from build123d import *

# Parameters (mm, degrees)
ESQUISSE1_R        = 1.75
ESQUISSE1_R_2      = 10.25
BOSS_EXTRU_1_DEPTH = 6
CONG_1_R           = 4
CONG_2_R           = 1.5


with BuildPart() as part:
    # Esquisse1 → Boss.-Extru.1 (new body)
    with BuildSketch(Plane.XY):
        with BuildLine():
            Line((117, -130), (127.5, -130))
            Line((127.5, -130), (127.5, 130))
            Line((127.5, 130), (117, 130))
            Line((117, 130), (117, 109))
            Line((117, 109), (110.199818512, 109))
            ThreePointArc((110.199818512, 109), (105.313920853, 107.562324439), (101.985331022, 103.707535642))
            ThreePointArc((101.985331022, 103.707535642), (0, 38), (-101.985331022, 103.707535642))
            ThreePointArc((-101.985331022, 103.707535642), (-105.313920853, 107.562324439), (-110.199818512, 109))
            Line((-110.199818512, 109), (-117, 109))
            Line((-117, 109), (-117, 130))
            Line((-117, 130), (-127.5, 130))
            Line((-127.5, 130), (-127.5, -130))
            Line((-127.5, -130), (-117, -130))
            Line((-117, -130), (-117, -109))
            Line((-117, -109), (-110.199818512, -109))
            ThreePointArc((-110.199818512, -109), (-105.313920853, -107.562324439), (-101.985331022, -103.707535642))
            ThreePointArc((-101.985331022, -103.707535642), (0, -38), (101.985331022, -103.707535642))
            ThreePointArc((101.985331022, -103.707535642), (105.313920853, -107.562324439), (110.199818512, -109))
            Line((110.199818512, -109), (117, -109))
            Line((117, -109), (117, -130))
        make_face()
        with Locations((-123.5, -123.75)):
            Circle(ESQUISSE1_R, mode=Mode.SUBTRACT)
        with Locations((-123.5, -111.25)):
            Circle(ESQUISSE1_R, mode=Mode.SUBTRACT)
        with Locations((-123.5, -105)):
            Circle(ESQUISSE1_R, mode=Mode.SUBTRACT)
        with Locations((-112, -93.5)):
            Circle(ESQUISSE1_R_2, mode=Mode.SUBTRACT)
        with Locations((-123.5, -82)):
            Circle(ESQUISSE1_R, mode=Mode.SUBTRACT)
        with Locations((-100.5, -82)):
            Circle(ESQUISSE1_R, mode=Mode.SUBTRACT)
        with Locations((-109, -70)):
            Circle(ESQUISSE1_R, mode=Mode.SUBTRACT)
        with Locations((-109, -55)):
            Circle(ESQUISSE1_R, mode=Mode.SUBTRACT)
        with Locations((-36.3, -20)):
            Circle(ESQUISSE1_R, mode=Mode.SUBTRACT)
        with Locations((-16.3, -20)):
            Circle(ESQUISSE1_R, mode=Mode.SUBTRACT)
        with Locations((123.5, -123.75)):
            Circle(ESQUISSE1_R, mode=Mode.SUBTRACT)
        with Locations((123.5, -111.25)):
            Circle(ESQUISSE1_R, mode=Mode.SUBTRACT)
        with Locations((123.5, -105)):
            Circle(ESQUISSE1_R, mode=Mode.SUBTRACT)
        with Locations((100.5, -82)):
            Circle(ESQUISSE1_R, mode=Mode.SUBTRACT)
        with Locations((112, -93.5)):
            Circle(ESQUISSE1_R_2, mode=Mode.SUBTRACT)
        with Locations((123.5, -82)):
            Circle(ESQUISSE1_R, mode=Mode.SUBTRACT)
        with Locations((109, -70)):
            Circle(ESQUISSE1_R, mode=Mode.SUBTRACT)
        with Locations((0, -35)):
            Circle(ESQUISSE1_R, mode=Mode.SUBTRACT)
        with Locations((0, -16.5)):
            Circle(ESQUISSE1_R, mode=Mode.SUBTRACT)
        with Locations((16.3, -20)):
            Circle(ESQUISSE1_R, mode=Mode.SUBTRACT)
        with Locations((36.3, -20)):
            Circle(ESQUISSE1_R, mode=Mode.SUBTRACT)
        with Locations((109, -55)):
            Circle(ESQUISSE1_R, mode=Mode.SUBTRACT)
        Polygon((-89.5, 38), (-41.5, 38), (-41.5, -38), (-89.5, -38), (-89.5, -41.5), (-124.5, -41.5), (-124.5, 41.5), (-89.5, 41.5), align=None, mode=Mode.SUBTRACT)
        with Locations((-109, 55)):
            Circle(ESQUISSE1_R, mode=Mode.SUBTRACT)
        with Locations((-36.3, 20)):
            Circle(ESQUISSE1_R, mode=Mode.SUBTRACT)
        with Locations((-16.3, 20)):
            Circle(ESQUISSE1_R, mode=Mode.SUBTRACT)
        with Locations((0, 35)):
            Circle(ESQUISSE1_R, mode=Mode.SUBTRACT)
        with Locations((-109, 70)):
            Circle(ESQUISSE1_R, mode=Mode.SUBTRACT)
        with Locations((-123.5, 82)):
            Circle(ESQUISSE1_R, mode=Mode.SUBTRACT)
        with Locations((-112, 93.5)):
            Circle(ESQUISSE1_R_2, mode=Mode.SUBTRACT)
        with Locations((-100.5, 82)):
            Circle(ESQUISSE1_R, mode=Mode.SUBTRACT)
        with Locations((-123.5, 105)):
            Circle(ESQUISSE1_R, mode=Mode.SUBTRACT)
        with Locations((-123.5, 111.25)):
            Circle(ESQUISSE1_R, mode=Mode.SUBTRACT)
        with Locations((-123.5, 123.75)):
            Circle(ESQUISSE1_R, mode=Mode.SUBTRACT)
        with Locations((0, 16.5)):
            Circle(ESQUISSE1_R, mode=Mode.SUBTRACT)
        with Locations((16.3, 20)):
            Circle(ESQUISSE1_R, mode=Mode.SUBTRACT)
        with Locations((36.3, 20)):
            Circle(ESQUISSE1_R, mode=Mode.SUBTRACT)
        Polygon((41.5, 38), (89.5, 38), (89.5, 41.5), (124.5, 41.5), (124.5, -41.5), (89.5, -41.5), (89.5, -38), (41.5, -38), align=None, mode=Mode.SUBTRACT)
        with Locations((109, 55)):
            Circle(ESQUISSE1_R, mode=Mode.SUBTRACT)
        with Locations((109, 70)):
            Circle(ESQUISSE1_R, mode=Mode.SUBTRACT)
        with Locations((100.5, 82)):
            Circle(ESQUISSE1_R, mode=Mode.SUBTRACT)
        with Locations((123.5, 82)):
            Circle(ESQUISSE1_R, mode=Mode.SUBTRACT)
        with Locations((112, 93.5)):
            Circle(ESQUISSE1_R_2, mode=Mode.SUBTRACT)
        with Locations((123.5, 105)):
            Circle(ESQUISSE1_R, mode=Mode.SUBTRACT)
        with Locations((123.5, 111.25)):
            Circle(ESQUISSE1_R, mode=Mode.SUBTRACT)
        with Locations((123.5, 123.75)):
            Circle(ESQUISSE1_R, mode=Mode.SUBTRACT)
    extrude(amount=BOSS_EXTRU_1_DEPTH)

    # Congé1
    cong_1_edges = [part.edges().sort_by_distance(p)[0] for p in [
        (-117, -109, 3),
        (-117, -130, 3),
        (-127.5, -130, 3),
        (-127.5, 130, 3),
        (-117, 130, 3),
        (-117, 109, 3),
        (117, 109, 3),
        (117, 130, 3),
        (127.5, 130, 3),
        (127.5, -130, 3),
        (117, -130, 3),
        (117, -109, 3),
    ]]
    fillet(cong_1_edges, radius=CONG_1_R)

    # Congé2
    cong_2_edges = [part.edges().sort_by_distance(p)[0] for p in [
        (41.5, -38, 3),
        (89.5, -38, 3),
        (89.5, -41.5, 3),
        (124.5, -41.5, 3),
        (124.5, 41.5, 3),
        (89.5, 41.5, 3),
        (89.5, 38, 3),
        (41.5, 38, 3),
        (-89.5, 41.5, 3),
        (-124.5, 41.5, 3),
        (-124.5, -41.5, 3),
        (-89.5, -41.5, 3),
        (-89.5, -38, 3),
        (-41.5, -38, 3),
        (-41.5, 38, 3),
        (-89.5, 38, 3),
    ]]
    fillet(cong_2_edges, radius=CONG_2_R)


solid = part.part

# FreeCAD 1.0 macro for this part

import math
import FreeCAD as App
import Part
import Sketcher


def edges_at(feature, points):
    """Names of the edges that pass closest to the given points."""
    edges = feature.Shape.Edges
    near = lambda p: min(range(len(edges)), key=lambda i: edges[i].distToShape(Part.Vertex(*p))[0])
    return sorted({f"Edge{near(p) + 1}" for p in points})


def add_polygon(sketch, points):
    """Adds a closed chain of lines whose ends are joined by coincident constraints."""
    first, n = sketch.GeometryCount, len(points)
    for a, b in zip(points, points[1:] + points[:1]):
        sketch.addGeometry(Part.LineSegment(App.Vector(*a, 0), App.Vector(*b, 0)), False)
    for i in range(n):
        sketch.addConstraint(Sketcher.Constraint("Coincident", first + i, 2, first + (i + 1) % n, 1))

doc = App.newDocument("Part")
params = doc.addObject("Spreadsheet::Sheet", "Params")
for row, (alias, value) in enumerate([
    ("sketch1_radius", "112 mm"),
    ("sketch1_diameter", "3.5 mm"),
    ("sketch1_diameter2", "20.5 mm"),
    ("sketch1_width", "48 mm"),
    ("sketch1_width2", "35 mm"),
    ("pad1_length", "6 mm"),
    ("fillet_radius", "4 mm"),
    ("fillet2_radius", "1.5 mm"),
], start=1):
    params.set(f"A{row}", alias)
    params.set(f"B{row}", "=" + value)
    params.setAlias(f"B{row}", alias)

body = doc.addObject("PartDesign::Body", "Body")

# Sketch on XY plane
sketch1 = body.newObject("Sketcher::SketchObject", "Sketch")
sketch1.AttachmentSupport = (doc.getObject("XY_Plane"), [""])
sketch1.MapMode = "FlatFace"
sketch1.addGeometry(Part.LineSegment(App.Vector(117, -130, 0), App.Vector(127.5, -130, 0)), False)  # 0
sketch1.addGeometry(Part.LineSegment(App.Vector(127.5, -130, 0), App.Vector(127.5, 130, 0)), False)  # 1
sketch1.addGeometry(Part.LineSegment(App.Vector(127.5, 130, 0), App.Vector(117, 130, 0)), False)  # 2
sketch1.addGeometry(Part.LineSegment(App.Vector(117, 130, 0), App.Vector(117, 109, 0)), False)  # 3
sketch1.addGeometry(Part.LineSegment(App.Vector(117, 109, 0), App.Vector(110.2, 109, 0)), False)  # 4
sketch1.addGeometry(Part.ArcOfCircle(Part.Circle(App.Vector(110.2, 100, 0), App.Vector(0, 0, 1), 9), math.radians(90), math.radians(156)), False)  # 5
sketch1.addGeometry(Part.ArcOfCircle(Part.Circle(App.Vector(0, 150, 0), App.Vector(0, 0, 1), 112), math.radians(-156), math.radians(-24)), False)  # 6
sketch1.addGeometry(Part.ArcOfCircle(Part.Circle(App.Vector(-110.2, 100, 0), App.Vector(0, 0, 1), 9), math.radians(24), math.radians(90)), False)  # 7
sketch1.addGeometry(Part.LineSegment(App.Vector(-110.2, 109, 0), App.Vector(-117, 109, 0)), False)  # 8
sketch1.addGeometry(Part.LineSegment(App.Vector(-117, 109, 0), App.Vector(-117, 130, 0)), False)  # 9
sketch1.addGeometry(Part.LineSegment(App.Vector(-117, 130, 0), App.Vector(-127.5, 130, 0)), False)  # 10
sketch1.addGeometry(Part.LineSegment(App.Vector(-127.5, 130, 0), App.Vector(-127.5, -130, 0)), False)  # 11
sketch1.addGeometry(Part.LineSegment(App.Vector(-127.5, -130, 0), App.Vector(-117, -130, 0)), False)  # 12
sketch1.addGeometry(Part.LineSegment(App.Vector(-117, -130, 0), App.Vector(-117, -109, 0)), False)  # 13
sketch1.addGeometry(Part.LineSegment(App.Vector(-117, -109, 0), App.Vector(-110.2, -109, 0)), False)  # 14
sketch1.addGeometry(Part.ArcOfCircle(Part.Circle(App.Vector(-110.2, -100, 0), App.Vector(0, 0, 1), 9), math.radians(-90), math.radians(-24)), False)  # 15
sketch1.addGeometry(Part.ArcOfCircle(Part.Circle(App.Vector(0, -150, 0), App.Vector(0, 0, 1), 112), math.radians(24), math.radians(156)), False)  # 16
sketch1.addGeometry(Part.ArcOfCircle(Part.Circle(App.Vector(110.2, -100, 0), App.Vector(0, 0, 1), 9), math.radians(-156), math.radians(-90)), False)  # 17
sketch1.addGeometry(Part.LineSegment(App.Vector(110.2, -109, 0), App.Vector(117, -109, 0)), False)  # 18
sketch1.addGeometry(Part.LineSegment(App.Vector(117, -109, 0), App.Vector(117, -130, 0)), False)  # 19
sketch1.addGeometry(Part.Circle(App.Vector(-123.5, -123.8, 0), App.Vector(0, 0, 1), 1.8), False)  # 20
sketch1.addGeometry(Part.Circle(App.Vector(-123.5, -111.2, 0), App.Vector(0, 0, 1), 1.8), False)  # 21
sketch1.addGeometry(Part.Circle(App.Vector(-123.5, -105, 0), App.Vector(0, 0, 1), 1.8), False)  # 22
sketch1.addGeometry(Part.Circle(App.Vector(-112, -93.5, 0), App.Vector(0, 0, 1), 10.2), False)  # 23
sketch1.addGeometry(Part.Circle(App.Vector(-123.5, -82, 0), App.Vector(0, 0, 1), 1.8), False)  # 24
sketch1.addGeometry(Part.Circle(App.Vector(-100.5, -82, 0), App.Vector(0, 0, 1), 1.8), False)  # 25
sketch1.addGeometry(Part.Circle(App.Vector(-109, -70, 0), App.Vector(0, 0, 1), 1.8), False)  # 26
sketch1.addGeometry(Part.Circle(App.Vector(-109, -55, 0), App.Vector(0, 0, 1), 1.8), False)  # 27
sketch1.addGeometry(Part.Circle(App.Vector(0, -35, 0), App.Vector(0, 0, 1), 1.8), False)  # 28
sketch1.addGeometry(Part.Circle(App.Vector(-36.3, -20, 0), App.Vector(0, 0, 1), 1.8), False)  # 29
sketch1.addGeometry(Part.Circle(App.Vector(-16.3, -20, 0), App.Vector(0, 0, 1), 1.8), False)  # 30
sketch1.addGeometry(Part.Circle(App.Vector(0, -16.5, 0), App.Vector(0, 0, 1), 1.8), False)  # 31
sketch1.addGeometry(Part.Circle(App.Vector(123.5, -123.8, 0), App.Vector(0, 0, 1), 1.8), False)  # 32
sketch1.addGeometry(Part.Circle(App.Vector(123.5, -111.2, 0), App.Vector(0, 0, 1), 1.8), False)  # 33
sketch1.addGeometry(Part.Circle(App.Vector(123.5, -105, 0), App.Vector(0, 0, 1), 1.8), False)  # 34
sketch1.addGeometry(Part.Circle(App.Vector(100.5, -82, 0), App.Vector(0, 0, 1), 1.8), False)  # 35
sketch1.addGeometry(Part.Circle(App.Vector(112, -93.5, 0), App.Vector(0, 0, 1), 10.2), False)  # 36
sketch1.addGeometry(Part.Circle(App.Vector(123.5, -82, 0), App.Vector(0, 0, 1), 1.8), False)  # 37
sketch1.addGeometry(Part.Circle(App.Vector(109, -70, 0), App.Vector(0, 0, 1), 1.8), False)  # 38
sketch1.addGeometry(Part.Circle(App.Vector(16.3, -20, 0), App.Vector(0, 0, 1), 1.8), False)  # 39
sketch1.addGeometry(Part.Circle(App.Vector(36.3, -20, 0), App.Vector(0, 0, 1), 1.8), False)  # 40
sketch1.addGeometry(Part.Circle(App.Vector(109, -55, 0), App.Vector(0, 0, 1), 1.8), False)  # 41
add_polygon(sketch1, [(-89.5, 41.5), (-89.5, 38), (-41.5, 38), (-41.5, -38), (-89.5, -38), (-89.5, -41.5), (-124.5, -41.5), (-124.5, 41.5)])  # lines 42-49
sketch1.addGeometry(Part.Circle(App.Vector(-109, 55, 0), App.Vector(0, 0, 1), 1.8), False)  # 50
sketch1.addGeometry(Part.Circle(App.Vector(-36.3, 20, 0), App.Vector(0, 0, 1), 1.8), False)  # 51
sketch1.addGeometry(Part.Circle(App.Vector(-16.3, 20, 0), App.Vector(0, 0, 1), 1.8), False)  # 52
sketch1.addGeometry(Part.Circle(App.Vector(0, 16.5, 0), App.Vector(0, 0, 1), 1.8), False)  # 53
sketch1.addGeometry(Part.Circle(App.Vector(0, 35, 0), App.Vector(0, 0, 1), 1.8), False)  # 54
sketch1.addGeometry(Part.Circle(App.Vector(-109, 70, 0), App.Vector(0, 0, 1), 1.8), False)  # 55
sketch1.addGeometry(Part.Circle(App.Vector(-123.5, 82, 0), App.Vector(0, 0, 1), 1.8), False)  # 56
sketch1.addGeometry(Part.Circle(App.Vector(-112, 93.5, 0), App.Vector(0, 0, 1), 10.2), False)  # 57
sketch1.addGeometry(Part.Circle(App.Vector(-100.5, 82, 0), App.Vector(0, 0, 1), 1.8), False)  # 58
sketch1.addGeometry(Part.Circle(App.Vector(-123.5, 105, 0), App.Vector(0, 0, 1), 1.8), False)  # 59
sketch1.addGeometry(Part.Circle(App.Vector(-123.5, 111.2, 0), App.Vector(0, 0, 1), 1.8), False)  # 60
sketch1.addGeometry(Part.Circle(App.Vector(-123.5, 123.8, 0), App.Vector(0, 0, 1), 1.8), False)  # 61
sketch1.addGeometry(Part.Circle(App.Vector(16.3, 20, 0), App.Vector(0, 0, 1), 1.8), False)  # 62
sketch1.addGeometry(Part.Circle(App.Vector(36.3, 20, 0), App.Vector(0, 0, 1), 1.8), False)  # 63
add_polygon(sketch1, [(41.5, -38), (41.5, 38), (89.5, 38), (89.5, 41.5), (124.5, 41.5), (124.5, -41.5), (89.5, -41.5), (89.5, -38)])  # lines 64-71
sketch1.addGeometry(Part.Circle(App.Vector(109, 55, 0), App.Vector(0, 0, 1), 1.8), False)  # 72
sketch1.addGeometry(Part.Circle(App.Vector(109, 70, 0), App.Vector(0, 0, 1), 1.8), False)  # 73
sketch1.addGeometry(Part.Circle(App.Vector(100.5, 82, 0), App.Vector(0, 0, 1), 1.8), False)  # 74
sketch1.addGeometry(Part.Circle(App.Vector(123.5, 82, 0), App.Vector(0, 0, 1), 1.8), False)  # 75
sketch1.addGeometry(Part.Circle(App.Vector(112, 93.5, 0), App.Vector(0, 0, 1), 10.2), False)  # 76
sketch1.addGeometry(Part.Circle(App.Vector(123.5, 105, 0), App.Vector(0, 0, 1), 1.8), False)  # 77
sketch1.addGeometry(Part.Circle(App.Vector(123.5, 111.2, 0), App.Vector(0, 0, 1), 1.8), False)  # 78
sketch1.addGeometry(Part.Circle(App.Vector(123.5, 123.8, 0), App.Vector(0, 0, 1), 1.8), False)  # 79
sketch1.addConstraint([
    Sketcher.Constraint("Coincident", 0, 2, 1, 1),
    Sketcher.Constraint("Coincident", 1, 2, 2, 1),
    Sketcher.Constraint("Coincident", 2, 2, 3, 1),
    Sketcher.Constraint("Coincident", 3, 2, 4, 1),
    Sketcher.Constraint("Tangent", 4, 2, 5, 1),
    Sketcher.Constraint("Tangent", 5, 2, 6, 2),
    Sketcher.Constraint("Tangent", 6, 1, 7, 1),
    Sketcher.Constraint("Tangent", 7, 2, 8, 1),
    Sketcher.Constraint("Coincident", 8, 2, 9, 1),
    Sketcher.Constraint("Coincident", 9, 2, 10, 1),
    Sketcher.Constraint("Coincident", 10, 2, 11, 1),
    Sketcher.Constraint("Coincident", 11, 2, 12, 1),
    Sketcher.Constraint("Coincident", 12, 2, 13, 1),
    Sketcher.Constraint("Coincident", 13, 2, 14, 1),
    Sketcher.Constraint("Tangent", 14, 2, 15, 1),
    Sketcher.Constraint("Tangent", 15, 2, 16, 2),
    Sketcher.Constraint("Tangent", 16, 1, 17, 1),
    Sketcher.Constraint("Tangent", 17, 2, 18, 1),
    Sketcher.Constraint("Coincident", 18, 2, 19, 1),
    Sketcher.Constraint("Coincident", 19, 2, 0, 1),
    Sketcher.Constraint("Horizontal", 0),
    Sketcher.Constraint("Vertical", 1),
    Sketcher.Constraint("Horizontal", 2),
    Sketcher.Constraint("Vertical", 3),
    Sketcher.Constraint("Horizontal", 4),
    Sketcher.Constraint("Horizontal", 8),
    Sketcher.Constraint("Vertical", 9),
    Sketcher.Constraint("Horizontal", 10),
    Sketcher.Constraint("Vertical", 11),
    Sketcher.Constraint("Horizontal", 12),
    Sketcher.Constraint("Vertical", 13),
    Sketcher.Constraint("Horizontal", 14),
    Sketcher.Constraint("Horizontal", 18),
    Sketcher.Constraint("Vertical", 19),
    Sketcher.Constraint("Vertical", 42),
    Sketcher.Constraint("Horizontal", 43),
    Sketcher.Constraint("Vertical", 44),
    Sketcher.Constraint("Horizontal", 45),
    Sketcher.Constraint("Vertical", 46),
    Sketcher.Constraint("Horizontal", 47),
    Sketcher.Constraint("Vertical", 48),
    Sketcher.Constraint("Horizontal", 49),
    Sketcher.Constraint("Vertical", 64),
    Sketcher.Constraint("Horizontal", 65),
    Sketcher.Constraint("Vertical", 66),
    Sketcher.Constraint("Horizontal", 67),
    Sketcher.Constraint("Vertical", 68),
    Sketcher.Constraint("Horizontal", 69),
    Sketcher.Constraint("Vertical", 70),
    Sketcher.Constraint("Horizontal", 71),
    Sketcher.Constraint("Equal", 5, 7),
    Sketcher.Constraint("Equal", 7, 15),
    Sketcher.Constraint("Equal", 6, 16),
    Sketcher.Constraint("Equal", 15, 17),
    Sketcher.Constraint("Equal", 20, 21),
    Sketcher.Constraint("Equal", 21, 22),
    Sketcher.Constraint("Equal", 22, 24),
    Sketcher.Constraint("Equal", 24, 25),
    Sketcher.Constraint("Equal", 25, 26),
    Sketcher.Constraint("Equal", 26, 27),
    Sketcher.Constraint("Equal", 27, 28),
    Sketcher.Constraint("Equal", 28, 29),
    Sketcher.Constraint("Equal", 29, 30),
    Sketcher.Constraint("Equal", 30, 31),
    Sketcher.Constraint("Equal", 31, 32),
    Sketcher.Constraint("Equal", 32, 33),
    Sketcher.Constraint("Equal", 33, 34),
    Sketcher.Constraint("Equal", 34, 35),
    Sketcher.Constraint("Equal", 23, 36),
    Sketcher.Constraint("Equal", 35, 37),
    Sketcher.Constraint("Equal", 37, 38),
    Sketcher.Constraint("Equal", 38, 39),
    Sketcher.Constraint("Equal", 39, 40),
    Sketcher.Constraint("Equal", 40, 41),
    Sketcher.Constraint("Equal", 41, 50),
    Sketcher.Constraint("Equal", 50, 51),
    Sketcher.Constraint("Equal", 51, 52),
    Sketcher.Constraint("Equal", 52, 53),
    Sketcher.Constraint("Equal", 53, 54),
    Sketcher.Constraint("Equal", 54, 55),
    Sketcher.Constraint("Equal", 55, 56),
    Sketcher.Constraint("Equal", 36, 57),
    Sketcher.Constraint("Equal", 56, 58),
    Sketcher.Constraint("Equal", 58, 59),
    Sketcher.Constraint("Equal", 59, 60),
    Sketcher.Constraint("Equal", 60, 61),
    Sketcher.Constraint("Equal", 61, 62),
    Sketcher.Constraint("Equal", 62, 63),
    Sketcher.Constraint("Equal", 63, 72),
    Sketcher.Constraint("Equal", 72, 73),
    Sketcher.Constraint("Equal", 73, 74),
    Sketcher.Constraint("Equal", 74, 75),
    Sketcher.Constraint("Equal", 57, 76),
    Sketcher.Constraint("Equal", 75, 77),
    Sketcher.Constraint("Equal", 77, 78),
    Sketcher.Constraint("Equal", 78, 79),
    Sketcher.Constraint("Symmetric", 5, 3, 15, 3, -1, 1),
    Sketcher.Constraint("Symmetric", 7, 3, 17, 3, -1, 1),
    Sketcher.Constraint("Symmetric", 41, 3, 50, 3, -1, 1),
    Sketcher.Constraint("Symmetric", 40, 3, 51, 3, -1, 1),
    Sketcher.Constraint("Symmetric", 39, 3, 52, 3, -1, 1),
    Sketcher.Constraint("Symmetric", 31, 3, 53, 3, -1, 1),
    Sketcher.Constraint("Symmetric", 28, 3, 54, 3, -1, 1),
    Sketcher.Constraint("Symmetric", 38, 3, 55, 3, -1, 1),
    Sketcher.Constraint("Symmetric", 37, 3, 56, 3, -1, 1),
    Sketcher.Constraint("Symmetric", 36, 3, 57, 3, -1, 1),
    Sketcher.Constraint("Symmetric", 35, 3, 58, 3, -1, 1),
    Sketcher.Constraint("Symmetric", 34, 3, 59, 3, -1, 1),
    Sketcher.Constraint("Symmetric", 33, 3, 60, 3, -1, 1),
    Sketcher.Constraint("Symmetric", 32, 3, 61, 3, -1, 1),
    Sketcher.Constraint("Symmetric", 30, 3, 62, 3, -1, 1),
    Sketcher.Constraint("Symmetric", 29, 3, 63, 3, -1, 1),
    Sketcher.Constraint("Symmetric", 27, 3, 72, 3, -1, 1),
    Sketcher.Constraint("Symmetric", 26, 3, 73, 3, -1, 1),
    Sketcher.Constraint("Symmetric", 25, 3, 74, 3, -1, 1),
    Sketcher.Constraint("Symmetric", 24, 3, 75, 3, -1, 1),
    Sketcher.Constraint("Symmetric", 23, 3, 76, 3, -1, 1),
    Sketcher.Constraint("Symmetric", 22, 3, 77, 3, -1, 1),
    Sketcher.Constraint("Symmetric", 21, 3, 78, 3, -1, 1),
    Sketcher.Constraint("Symmetric", 20, 3, 79, 3, -1, 1),
    Sketcher.Constraint("Symmetric", 0, 2, 10, 2, -1, 1),
    Sketcher.Constraint("Symmetric", 2, 2, 12, 2, -1, 1),
    Sketcher.Constraint("Symmetric", 44, 2, 64, 2, -1, 1),
    Sketcher.Constraint("Symmetric", 46, 2, 66, 2, -1, 1),
    Sketcher.Constraint("Symmetric", 48, 2, 68, 2, -1, 1),
    Sketcher.Constraint("Symmetric", 42, 2, 70, 2, -1, 1),
    Sketcher.Constraint("Symmetric", 5, 3, 7, 3, -2),
    Sketcher.Constraint("Symmetric", 20, 3, 32, 3, -2),
    Sketcher.Constraint("Symmetric", 21, 3, 33, 3, -2),
    Sketcher.Constraint("Symmetric", 22, 3, 34, 3, -2),
    Sketcher.Constraint("Symmetric", 25, 3, 35, 3, -2),
    Sketcher.Constraint("Symmetric", 23, 3, 36, 3, -2),
    Sketcher.Constraint("Symmetric", 24, 3, 37, 3, -2),
    Sketcher.Constraint("Symmetric", 26, 3, 38, 3, -2),
    Sketcher.Constraint("Symmetric", 30, 3, 39, 3, -2),
    Sketcher.Constraint("Symmetric", 29, 3, 40, 3, -2),
    Sketcher.Constraint("Symmetric", 27, 3, 41, 3, -2),
    Sketcher.Constraint("Symmetric", 2, 2, 9, 2, -2),
    Sketcher.Constraint("Symmetric", 42, 2, 65, 2, -2),
    Sketcher.Constraint("PointOnObject", 28, 3, -2),
    Sketcher.Constraint("PointOnObject", 31, 3, -2),
    Sketcher.Constraint("Horizontal", 24, 3, 25, 3),
    Sketcher.Constraint("Horizontal", 29, 3, 30, 3),
    Sketcher.Constraint("Horizontal", 49, 2, 66, 2),
    Sketcher.Constraint("Vertical", 20, 3, 21, 3),
    Sketcher.Constraint("Vertical", 21, 3, 22, 3),
    Sketcher.Constraint("Vertical", 22, 3, 24, 3),
    Sketcher.Constraint("Vertical", 26, 3, 27, 3),
    Sketcher.Constraint("Vertical", 3, 2, 18, 2),
    Sketcher.Constraint("Radius", 6, 112.0),
    Sketcher.Constraint("Diameter", 20, 3.5),
    Sketcher.Constraint("Diameter", 23, 20.5),
    Sketcher.Constraint("DistanceX", 43, 1, 43, 2, 48.0),
    Sketcher.Constraint("DistanceX", 47, 2, 47, 1, 35.0),
    Sketcher.Constraint("DistanceY", 1, 1, 1, 2, 260.0),
    Sketcher.Constraint("DistanceY", 3, 2, 3, 1, 21.0),
    Sketcher.Constraint("DistanceY", 44, 2, 44, 1, 76.0),
    Sketcher.Constraint("DistanceY", 48, 1, 48, 2, 83.0),
    Sketcher.Constraint("DistanceX", 0, 1, 0, 2, 10.5),
    Sketcher.Constraint("DistanceY", -1, 1, 6, 3, 150.0),
    Sketcher.Constraint("DistanceY", 22, 3, -1, 1, 105.0),
    Sketcher.Constraint("DistanceX", 23, 3, -1, 1, 112.0),
    Sketcher.Constraint("DistanceY", 24, 3, -1, 1, 82.0),
    Sketcher.Constraint("DistanceX", 26, 3, -1, 1, 109.0),
    Sketcher.Constraint("DistanceY", 26, 3, -1, 1, 70.0),
    Sketcher.Constraint("DistanceY", 27, 3, -1, 1, 55.0),
    Sketcher.Constraint("DistanceY", 28, 3, -1, 1, 35.0),
    Sketcher.Constraint("DistanceY", 29, 3, -1, 1, 20.0),
    Sketcher.Constraint("DistanceX", -1, 1, 2, 2, 117.0),
    Sketcher.Constraint("DistanceX", 20, 3, -1, 1, 123.5),
    Sketcher.Constraint("DistanceY", 23, 3, -1, 1, 93.5),
    Sketcher.Constraint("DistanceX", 25, 3, -1, 1, 100.5),
    Sketcher.Constraint("DistanceX", 29, 3, -1, 1, 36.3),
    Sketcher.Constraint("DistanceX", 30, 3, -1, 1, 16.3),
    Sketcher.Constraint("DistanceY", 31, 3, -1, 1, 16.5),
    Sketcher.Constraint("DistanceX", 42, 2, -1, 1, 89.5),
    Sketcher.Constraint("DistanceY", 20, 3, -1, 1, 123.75),
    Sketcher.Constraint("DistanceY", 21, 3, -1, 1, 111.25),
    Sketcher.Constraint("Radius", 5, 9.021127),
])
sketch1.setExpression("Constraints[165]", "Params.sketch1_radius")
sketch1.setExpression("Constraints[166]", "Params.sketch1_diameter")
sketch1.setExpression("Constraints[167]", "Params.sketch1_diameter2")
sketch1.setExpression("Constraints[168]", "Params.sketch1_width")
sketch1.setExpression("Constraints[169]", "Params.sketch1_width2")
pad1 = body.newObject("PartDesign::Pad", "Pad")
pad1.Profile = sketch1
pad1.setExpression("Length", "Params.pad1_length")
doc.recompute()

fillet = body.newObject("PartDesign::Fillet", "Fillet")
fillet.Base = (pad1, edges_at(pad1, [
    (-117, -109, 3),
    (-117, -130, 3),
    (-127.5, -130, 3),
    (-127.5, 130, 3),
    (-117, 130, 3),
    (-117, 109, 3),
    (117, 109, 3),
    (117, 130, 3),
    (127.5, 130, 3),
    (127.5, -130, 3),
    (117, -130, 3),
    (117, -109, 3),
]))
fillet.setExpression("Radius", "Params.fillet_radius")
doc.recompute()

fillet2 = body.newObject("PartDesign::Fillet", "Fillet001")
fillet2.Base = (fillet, edges_at(fillet, [
    (41.5, -38, 3),
    (89.5, -38, 3),
    (89.5, -41.5, 3),
    (124.5, -41.5, 3),
    (124.5, 41.5, 3),
    (89.5, 41.5, 3),
    (89.5, 38, 3),
    (41.5, 38, 3),
    (-89.5, 41.5, 3),
    (-124.5, 41.5, 3),
    (-124.5, -41.5, 3),
    (-89.5, -41.5, 3),
    (-89.5, -38, 3),
    (-41.5, -38, 3),
    (-41.5, 38, 3),
    (-89.5, 38, 3),
]))
fillet2.setExpression("Radius", "Params.fillet2_radius")

doc.recompute()
